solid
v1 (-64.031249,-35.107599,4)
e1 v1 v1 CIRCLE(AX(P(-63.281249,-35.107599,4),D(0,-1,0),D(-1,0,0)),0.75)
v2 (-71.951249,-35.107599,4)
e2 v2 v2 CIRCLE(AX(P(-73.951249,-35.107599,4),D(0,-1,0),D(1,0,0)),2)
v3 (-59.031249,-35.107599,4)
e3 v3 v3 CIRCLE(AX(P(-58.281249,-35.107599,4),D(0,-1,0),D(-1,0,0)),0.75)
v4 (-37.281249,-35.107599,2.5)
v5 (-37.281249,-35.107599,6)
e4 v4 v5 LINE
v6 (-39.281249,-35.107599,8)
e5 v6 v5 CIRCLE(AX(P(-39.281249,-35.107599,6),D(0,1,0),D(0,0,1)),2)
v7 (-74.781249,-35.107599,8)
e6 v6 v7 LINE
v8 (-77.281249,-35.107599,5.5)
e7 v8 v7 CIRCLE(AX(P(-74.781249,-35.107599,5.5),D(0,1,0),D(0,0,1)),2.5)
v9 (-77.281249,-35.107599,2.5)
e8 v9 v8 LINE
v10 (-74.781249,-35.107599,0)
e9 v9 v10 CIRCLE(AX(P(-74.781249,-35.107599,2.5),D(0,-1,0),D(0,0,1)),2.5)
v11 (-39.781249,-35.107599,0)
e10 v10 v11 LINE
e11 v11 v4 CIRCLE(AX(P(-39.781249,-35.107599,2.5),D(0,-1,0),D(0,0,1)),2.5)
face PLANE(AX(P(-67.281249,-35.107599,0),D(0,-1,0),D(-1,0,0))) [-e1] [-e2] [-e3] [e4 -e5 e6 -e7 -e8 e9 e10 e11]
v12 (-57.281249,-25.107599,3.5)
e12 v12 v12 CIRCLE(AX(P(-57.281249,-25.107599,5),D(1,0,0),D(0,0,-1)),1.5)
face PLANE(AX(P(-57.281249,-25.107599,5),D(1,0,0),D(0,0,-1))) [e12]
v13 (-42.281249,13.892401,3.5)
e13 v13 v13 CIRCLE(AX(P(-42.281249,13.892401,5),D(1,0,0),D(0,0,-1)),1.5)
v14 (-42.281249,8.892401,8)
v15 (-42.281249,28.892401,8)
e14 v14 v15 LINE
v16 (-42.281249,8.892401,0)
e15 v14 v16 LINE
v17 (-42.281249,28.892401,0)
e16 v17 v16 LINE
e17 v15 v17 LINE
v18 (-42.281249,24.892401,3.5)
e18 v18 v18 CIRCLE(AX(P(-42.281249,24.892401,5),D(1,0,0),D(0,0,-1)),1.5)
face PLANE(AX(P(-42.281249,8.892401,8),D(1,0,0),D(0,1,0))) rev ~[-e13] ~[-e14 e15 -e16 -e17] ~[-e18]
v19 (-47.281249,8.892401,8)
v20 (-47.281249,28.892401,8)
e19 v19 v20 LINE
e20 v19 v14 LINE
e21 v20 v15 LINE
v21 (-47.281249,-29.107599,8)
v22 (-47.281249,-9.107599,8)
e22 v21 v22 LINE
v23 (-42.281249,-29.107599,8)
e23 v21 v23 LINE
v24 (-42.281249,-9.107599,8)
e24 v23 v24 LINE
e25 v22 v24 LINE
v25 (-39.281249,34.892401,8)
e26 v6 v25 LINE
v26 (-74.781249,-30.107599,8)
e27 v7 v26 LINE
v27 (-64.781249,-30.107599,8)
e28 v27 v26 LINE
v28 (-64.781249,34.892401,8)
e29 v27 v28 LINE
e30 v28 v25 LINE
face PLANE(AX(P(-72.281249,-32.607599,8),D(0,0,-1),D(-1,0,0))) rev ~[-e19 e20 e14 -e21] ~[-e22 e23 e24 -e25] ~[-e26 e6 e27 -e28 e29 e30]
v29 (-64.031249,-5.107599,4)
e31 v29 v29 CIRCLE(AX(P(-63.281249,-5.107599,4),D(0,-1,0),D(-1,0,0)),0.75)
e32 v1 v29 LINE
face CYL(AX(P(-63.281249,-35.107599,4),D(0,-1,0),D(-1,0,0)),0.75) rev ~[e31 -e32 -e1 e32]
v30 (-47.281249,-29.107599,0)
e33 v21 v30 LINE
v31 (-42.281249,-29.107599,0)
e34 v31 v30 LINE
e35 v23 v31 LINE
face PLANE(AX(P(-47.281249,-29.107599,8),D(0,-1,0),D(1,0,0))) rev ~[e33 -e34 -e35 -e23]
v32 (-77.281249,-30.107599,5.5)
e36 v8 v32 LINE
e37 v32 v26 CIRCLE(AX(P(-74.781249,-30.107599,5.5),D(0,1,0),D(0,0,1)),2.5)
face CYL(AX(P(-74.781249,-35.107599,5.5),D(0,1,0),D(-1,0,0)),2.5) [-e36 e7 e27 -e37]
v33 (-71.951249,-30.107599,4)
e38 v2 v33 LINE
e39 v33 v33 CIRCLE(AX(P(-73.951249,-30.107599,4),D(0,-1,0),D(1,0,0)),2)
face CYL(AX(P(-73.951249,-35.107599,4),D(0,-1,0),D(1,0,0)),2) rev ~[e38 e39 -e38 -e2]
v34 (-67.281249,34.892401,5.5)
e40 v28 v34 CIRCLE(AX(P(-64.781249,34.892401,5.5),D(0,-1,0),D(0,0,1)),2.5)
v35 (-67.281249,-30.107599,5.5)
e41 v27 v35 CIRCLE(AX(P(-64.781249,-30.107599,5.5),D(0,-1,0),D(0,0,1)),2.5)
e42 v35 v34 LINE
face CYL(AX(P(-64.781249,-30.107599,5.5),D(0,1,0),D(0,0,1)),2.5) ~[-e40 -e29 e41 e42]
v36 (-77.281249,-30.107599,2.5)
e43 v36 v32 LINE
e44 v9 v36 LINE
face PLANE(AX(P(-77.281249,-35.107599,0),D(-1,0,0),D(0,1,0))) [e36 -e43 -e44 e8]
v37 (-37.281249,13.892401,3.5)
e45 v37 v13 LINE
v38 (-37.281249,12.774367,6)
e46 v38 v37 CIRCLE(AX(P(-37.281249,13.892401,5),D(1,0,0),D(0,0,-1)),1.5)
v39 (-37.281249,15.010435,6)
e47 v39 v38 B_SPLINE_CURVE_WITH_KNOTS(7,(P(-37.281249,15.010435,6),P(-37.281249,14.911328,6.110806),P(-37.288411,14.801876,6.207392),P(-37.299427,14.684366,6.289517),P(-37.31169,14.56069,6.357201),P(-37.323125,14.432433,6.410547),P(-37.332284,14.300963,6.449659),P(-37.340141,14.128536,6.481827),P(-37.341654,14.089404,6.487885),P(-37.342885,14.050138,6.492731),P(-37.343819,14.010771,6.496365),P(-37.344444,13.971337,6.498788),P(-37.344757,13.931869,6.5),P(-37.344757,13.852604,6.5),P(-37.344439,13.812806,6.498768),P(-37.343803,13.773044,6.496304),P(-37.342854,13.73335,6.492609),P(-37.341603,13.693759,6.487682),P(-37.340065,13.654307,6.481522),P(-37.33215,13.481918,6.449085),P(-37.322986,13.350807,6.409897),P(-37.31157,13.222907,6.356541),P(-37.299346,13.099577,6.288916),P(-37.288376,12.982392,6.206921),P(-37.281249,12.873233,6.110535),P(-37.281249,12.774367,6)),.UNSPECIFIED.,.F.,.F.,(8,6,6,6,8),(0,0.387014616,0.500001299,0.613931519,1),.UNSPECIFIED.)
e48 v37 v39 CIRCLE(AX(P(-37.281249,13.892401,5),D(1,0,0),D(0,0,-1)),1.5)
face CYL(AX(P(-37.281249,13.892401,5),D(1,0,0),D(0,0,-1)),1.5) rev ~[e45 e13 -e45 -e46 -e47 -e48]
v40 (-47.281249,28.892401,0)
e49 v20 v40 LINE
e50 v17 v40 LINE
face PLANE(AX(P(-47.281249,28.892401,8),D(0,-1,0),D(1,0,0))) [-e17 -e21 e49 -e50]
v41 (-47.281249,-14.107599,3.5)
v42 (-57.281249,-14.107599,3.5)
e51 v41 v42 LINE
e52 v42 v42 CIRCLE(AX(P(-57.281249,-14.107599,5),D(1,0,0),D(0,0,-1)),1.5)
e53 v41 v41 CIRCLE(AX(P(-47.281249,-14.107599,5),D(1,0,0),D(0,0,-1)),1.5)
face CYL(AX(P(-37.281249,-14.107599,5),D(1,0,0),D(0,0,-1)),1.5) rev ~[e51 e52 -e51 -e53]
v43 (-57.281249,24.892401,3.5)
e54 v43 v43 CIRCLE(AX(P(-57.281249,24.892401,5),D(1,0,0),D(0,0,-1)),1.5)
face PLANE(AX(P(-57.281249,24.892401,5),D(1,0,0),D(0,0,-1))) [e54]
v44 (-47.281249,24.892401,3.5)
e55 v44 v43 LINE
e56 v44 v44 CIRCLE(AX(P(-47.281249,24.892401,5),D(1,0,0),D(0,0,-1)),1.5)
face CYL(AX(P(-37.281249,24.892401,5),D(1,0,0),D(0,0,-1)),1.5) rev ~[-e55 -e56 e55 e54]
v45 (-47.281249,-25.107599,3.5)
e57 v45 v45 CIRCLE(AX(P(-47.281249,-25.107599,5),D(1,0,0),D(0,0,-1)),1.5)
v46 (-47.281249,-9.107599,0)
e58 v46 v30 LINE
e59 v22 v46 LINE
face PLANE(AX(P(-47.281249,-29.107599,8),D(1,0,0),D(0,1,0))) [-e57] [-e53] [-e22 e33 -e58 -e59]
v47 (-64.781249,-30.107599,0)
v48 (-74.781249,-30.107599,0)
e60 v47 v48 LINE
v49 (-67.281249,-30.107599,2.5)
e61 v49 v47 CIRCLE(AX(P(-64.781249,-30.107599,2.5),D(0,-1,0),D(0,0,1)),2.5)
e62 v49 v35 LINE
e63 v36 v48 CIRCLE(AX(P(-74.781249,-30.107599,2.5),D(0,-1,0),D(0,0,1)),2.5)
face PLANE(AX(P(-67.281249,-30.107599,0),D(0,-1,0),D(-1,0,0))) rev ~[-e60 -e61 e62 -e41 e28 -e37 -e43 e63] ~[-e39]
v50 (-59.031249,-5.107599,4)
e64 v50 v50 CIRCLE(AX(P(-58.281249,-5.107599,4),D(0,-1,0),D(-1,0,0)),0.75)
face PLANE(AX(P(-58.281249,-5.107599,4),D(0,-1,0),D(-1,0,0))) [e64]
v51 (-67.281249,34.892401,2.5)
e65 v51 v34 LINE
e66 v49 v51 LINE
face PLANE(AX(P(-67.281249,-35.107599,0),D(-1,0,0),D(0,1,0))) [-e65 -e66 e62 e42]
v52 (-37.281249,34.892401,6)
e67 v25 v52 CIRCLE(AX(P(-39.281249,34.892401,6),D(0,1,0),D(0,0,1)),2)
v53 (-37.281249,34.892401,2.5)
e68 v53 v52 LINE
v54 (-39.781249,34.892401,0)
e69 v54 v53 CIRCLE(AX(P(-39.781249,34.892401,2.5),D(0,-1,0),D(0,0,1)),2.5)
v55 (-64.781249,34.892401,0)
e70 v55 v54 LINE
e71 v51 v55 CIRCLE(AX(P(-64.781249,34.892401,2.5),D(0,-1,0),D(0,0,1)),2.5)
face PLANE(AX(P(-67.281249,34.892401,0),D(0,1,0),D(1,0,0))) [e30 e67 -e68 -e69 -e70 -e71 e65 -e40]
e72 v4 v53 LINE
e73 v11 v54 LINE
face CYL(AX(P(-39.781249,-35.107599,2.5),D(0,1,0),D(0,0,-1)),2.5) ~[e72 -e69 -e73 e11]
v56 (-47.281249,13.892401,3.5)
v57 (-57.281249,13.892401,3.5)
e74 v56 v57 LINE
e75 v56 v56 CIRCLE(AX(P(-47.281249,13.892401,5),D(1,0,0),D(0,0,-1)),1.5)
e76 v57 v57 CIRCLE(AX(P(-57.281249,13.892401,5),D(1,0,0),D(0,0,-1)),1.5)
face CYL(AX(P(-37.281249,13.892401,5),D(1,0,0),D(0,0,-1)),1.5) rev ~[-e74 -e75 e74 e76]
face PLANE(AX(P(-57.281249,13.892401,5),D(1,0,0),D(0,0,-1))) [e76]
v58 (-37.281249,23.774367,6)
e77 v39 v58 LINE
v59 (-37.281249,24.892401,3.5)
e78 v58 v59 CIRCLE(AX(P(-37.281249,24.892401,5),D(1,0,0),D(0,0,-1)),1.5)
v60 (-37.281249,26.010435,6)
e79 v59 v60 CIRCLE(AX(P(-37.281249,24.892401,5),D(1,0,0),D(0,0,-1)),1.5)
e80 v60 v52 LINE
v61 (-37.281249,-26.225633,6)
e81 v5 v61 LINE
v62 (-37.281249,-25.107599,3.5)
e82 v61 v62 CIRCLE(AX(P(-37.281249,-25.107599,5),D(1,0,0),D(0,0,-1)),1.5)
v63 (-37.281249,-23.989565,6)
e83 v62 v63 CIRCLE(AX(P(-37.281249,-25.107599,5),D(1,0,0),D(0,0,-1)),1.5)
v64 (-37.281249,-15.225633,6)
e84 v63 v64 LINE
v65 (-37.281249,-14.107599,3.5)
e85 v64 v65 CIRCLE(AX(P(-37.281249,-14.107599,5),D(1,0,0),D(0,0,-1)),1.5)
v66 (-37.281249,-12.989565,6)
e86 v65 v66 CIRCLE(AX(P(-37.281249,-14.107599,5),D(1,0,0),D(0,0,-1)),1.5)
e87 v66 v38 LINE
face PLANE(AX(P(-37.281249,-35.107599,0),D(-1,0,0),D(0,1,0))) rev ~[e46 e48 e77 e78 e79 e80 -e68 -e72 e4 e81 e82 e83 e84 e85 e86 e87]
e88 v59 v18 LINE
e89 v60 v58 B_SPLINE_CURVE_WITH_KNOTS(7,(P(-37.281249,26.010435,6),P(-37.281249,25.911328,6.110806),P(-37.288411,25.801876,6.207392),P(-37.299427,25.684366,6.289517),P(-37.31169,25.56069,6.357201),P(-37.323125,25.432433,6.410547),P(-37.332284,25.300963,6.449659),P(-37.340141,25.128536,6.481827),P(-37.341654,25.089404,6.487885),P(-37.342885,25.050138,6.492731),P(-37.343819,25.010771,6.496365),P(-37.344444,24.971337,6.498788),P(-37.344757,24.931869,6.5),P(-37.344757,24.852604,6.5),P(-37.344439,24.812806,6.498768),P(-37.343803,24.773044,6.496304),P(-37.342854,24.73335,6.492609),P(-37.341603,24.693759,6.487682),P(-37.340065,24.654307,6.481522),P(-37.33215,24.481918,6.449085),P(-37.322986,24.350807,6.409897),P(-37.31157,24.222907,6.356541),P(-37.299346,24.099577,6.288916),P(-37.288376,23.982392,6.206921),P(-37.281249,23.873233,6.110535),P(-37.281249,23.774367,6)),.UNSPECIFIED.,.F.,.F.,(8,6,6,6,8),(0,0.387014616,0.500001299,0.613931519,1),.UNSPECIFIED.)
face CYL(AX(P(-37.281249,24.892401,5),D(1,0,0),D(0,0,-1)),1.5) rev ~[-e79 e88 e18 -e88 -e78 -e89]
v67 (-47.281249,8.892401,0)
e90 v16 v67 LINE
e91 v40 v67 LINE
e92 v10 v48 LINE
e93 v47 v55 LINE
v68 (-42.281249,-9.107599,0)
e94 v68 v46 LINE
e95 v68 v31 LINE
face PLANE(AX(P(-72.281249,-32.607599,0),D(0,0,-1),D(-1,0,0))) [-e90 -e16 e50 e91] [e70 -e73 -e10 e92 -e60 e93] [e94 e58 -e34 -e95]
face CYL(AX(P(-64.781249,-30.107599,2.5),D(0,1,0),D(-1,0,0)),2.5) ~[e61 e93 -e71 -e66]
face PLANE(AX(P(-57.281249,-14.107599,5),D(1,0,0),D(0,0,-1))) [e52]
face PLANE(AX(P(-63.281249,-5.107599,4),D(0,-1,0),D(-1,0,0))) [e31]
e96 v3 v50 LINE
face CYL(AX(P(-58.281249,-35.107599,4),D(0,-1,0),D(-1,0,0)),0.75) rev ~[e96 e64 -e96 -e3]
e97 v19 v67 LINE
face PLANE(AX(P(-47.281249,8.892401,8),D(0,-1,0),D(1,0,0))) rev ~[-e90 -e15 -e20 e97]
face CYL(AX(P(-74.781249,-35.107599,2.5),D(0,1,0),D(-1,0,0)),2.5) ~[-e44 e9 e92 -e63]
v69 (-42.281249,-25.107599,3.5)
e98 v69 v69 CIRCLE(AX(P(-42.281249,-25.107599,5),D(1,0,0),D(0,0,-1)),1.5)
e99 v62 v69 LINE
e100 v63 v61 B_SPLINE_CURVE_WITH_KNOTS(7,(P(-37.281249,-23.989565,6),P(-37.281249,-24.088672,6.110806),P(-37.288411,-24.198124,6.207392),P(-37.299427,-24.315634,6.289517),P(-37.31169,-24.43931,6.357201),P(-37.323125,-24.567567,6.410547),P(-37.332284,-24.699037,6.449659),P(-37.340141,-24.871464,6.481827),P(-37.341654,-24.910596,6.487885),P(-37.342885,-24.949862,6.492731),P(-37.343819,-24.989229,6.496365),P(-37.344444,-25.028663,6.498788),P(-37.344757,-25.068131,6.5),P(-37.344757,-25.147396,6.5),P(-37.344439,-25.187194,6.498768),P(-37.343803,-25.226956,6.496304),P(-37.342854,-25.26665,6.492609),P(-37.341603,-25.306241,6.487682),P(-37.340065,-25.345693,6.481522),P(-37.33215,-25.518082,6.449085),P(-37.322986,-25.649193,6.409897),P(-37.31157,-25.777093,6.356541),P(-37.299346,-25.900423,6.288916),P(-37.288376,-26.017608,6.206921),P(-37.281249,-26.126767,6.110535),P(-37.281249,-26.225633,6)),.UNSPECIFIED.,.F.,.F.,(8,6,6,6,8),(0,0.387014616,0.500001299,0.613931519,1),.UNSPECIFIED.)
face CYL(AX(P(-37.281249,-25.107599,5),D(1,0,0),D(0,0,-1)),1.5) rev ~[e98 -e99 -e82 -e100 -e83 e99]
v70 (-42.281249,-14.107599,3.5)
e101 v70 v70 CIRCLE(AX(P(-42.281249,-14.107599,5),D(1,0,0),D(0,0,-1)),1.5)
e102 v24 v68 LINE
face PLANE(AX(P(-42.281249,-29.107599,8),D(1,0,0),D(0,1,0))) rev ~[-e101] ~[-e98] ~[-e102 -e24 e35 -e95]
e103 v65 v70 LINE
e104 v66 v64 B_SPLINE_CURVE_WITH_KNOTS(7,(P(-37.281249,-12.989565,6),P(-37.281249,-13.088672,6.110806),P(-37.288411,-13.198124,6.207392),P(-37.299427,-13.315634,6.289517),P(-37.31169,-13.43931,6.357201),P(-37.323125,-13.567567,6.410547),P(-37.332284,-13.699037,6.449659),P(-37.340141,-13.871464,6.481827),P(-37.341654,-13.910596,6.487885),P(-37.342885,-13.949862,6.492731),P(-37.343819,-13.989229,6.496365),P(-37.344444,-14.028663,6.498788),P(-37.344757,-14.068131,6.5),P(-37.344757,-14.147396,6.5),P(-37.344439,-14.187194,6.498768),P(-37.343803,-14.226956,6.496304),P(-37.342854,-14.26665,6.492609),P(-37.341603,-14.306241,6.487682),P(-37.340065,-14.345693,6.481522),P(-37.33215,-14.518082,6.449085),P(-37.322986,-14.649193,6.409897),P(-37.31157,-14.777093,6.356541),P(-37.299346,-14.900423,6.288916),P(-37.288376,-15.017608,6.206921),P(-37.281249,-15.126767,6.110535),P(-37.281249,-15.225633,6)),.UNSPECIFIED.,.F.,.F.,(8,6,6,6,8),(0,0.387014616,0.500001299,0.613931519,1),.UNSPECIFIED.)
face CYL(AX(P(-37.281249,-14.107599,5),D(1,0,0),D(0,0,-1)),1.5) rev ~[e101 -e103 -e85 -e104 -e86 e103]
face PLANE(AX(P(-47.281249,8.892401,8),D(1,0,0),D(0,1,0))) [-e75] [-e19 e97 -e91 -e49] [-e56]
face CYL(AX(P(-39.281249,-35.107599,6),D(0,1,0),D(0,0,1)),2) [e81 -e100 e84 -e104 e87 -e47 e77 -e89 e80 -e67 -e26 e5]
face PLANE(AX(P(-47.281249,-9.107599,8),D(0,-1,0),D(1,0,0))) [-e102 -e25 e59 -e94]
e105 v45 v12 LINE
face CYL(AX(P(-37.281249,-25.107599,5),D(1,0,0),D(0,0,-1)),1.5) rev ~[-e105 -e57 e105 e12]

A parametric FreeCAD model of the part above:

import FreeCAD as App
import Part
import Sketcher


def edges_at(feature, points):
    """Names of the edges that pass closest to the given points."""
    edges = feature.Shape.Edges
    near = lambda p: min(range(len(edges)), key=lambda i: edges[i].distToShape(Part.Vertex(*p))[0])
    return sorted({f"Edge{near(p) + 1}" for p in points})


def add_polygon(sketch, points):
    """Adds a closed chain of lines whose ends are joined by coincident constraints."""
    first, n = sketch.GeometryCount, len(points)
    for a, b in zip(points, points[1:] + points[:1]):
        sketch.addGeometry(Part.LineSegment(App.Vector(*a, 0), App.Vector(*b, 0)), False)
    for i in range(n):
        sketch.addConstraint(Sketcher.Constraint("Coincident", first + i, 2, first + (i + 1) % n, 1))

doc = App.newDocument("Part")
body = doc.addObject("PartDesign::Body", "Body")

# Sketch on XY plane
sketch1 = doc.addObject("Sketcher::SketchObject", "Sketch")
body.addObject(sketch1)
sketch1.AttachmentSupport = (doc.XY_Plane, [""])
sketch1.MapMode = "FlatFace"
add_polygon(sketch1, [(-67.281249, 34.892401), (-67.281249, -35.107599), (-37.281249, -35.107599), (-37.281249, 34.892401)])  # lines 0-3
sketch1.addConstraint(Sketcher.Constraint("Vertical", 0))
sketch1.addConstraint(Sketcher.Constraint("Horizontal", 1))
sketch1.addConstraint(Sketcher.Constraint("Vertical", 2))
sketch1.addConstraint(Sketcher.Constraint("Horizontal", 3))
sketch1.addConstraint(Sketcher.Constraint("DistanceX", 1, 1, 1, 2, 30.0))
sketch1.addConstraint(Sketcher.Constraint("DistanceY", 0, 2, 0, 1, 70.0))
sketch1.addConstraint(Sketcher.Constraint("DistanceY", 0, 2, -1, 1, 35.107599))
sketch1.addConstraint(Sketcher.Constraint("DistanceX", 0, 2, -1, 1, 67.281249))
pad1 = doc.addObject("PartDesign::Pad", "Pad")
body.addObject(pad1)
pad1.Profile = sketch1
pad1.Length = 8

# Sketch on XZ plane
sketch2 = doc.addObject("Sketcher::SketchObject", "Sketch001")
body.addObject(sketch2)
sketch2.AttachmentSupport = (doc.XZ_Plane, [""])
sketch2.MapMode = "FlatFace"
sketch2.AttachmentOffset = App.Placement(App.Vector(0, 0, 35.107599), App.Rotation())
sketch2.addGeometry(Part.Circle(App.Vector(-58.281249, 4, 0), App.Vector(0, 0, 1), 0.75), False)
sketch2.addGeometry(Part.Circle(App.Vector(-63.281249, 4, 0), App.Vector(0, 0, 1), 0.75), False)
sketch2.addConstraint(Sketcher.Constraint("Equal", 0, 1))
sketch2.addConstraint(Sketcher.Constraint("Horizontal", 0, 3, 1, 3))
sketch2.addConstraint(Sketcher.Constraint("Diameter", 0, 1.5))
sketch2.addConstraint(Sketcher.Constraint("DistanceY", -1, 1, 0, 3, 4.0))
sketch2.addConstraint(Sketcher.Constraint("DistanceX", 1, 3, 0, 3, 5.0))
sketch2.addConstraint(Sketcher.Constraint("DistanceX", 0, 3, -1, 1, 58.281249))
pocket1 = doc.addObject("PartDesign::Pocket", "Pocket")
body.addObject(pocket1)
pocket1.Profile = sketch2
pocket1.Length = 30
doc.recompute()

fillet = doc.addObject("PartDesign::Fillet", "Fillet")
body.addObject(fillet)
fillet.Base = (pocket1, edges_at(pocket1, [(-37.281, -0.108, 8)]))
fillet.Radius = 2

# Sketch on XY plane
sketch3 = doc.addObject("Sketcher::SketchObject", "Sketch002")
body.addObject(sketch3)
sketch3.AttachmentSupport = (doc.XY_Plane, [""])
sketch3.MapMode = "FlatFace"
add_polygon(sketch3, [(-67.281249, -30.107599), (-67.281249, -35.107599), (-77.281249, -35.107599), (-77.281249, -30.107599)])  # lines 0-3
sketch3.addConstraint(Sketcher.Constraint("Vertical", 0))
sketch3.addConstraint(Sketcher.Constraint("Horizontal", 1))
sketch3.addConstraint(Sketcher.Constraint("Vertical", 2))
sketch3.addConstraint(Sketcher.Constraint("Horizontal", 3))
sketch3.addConstraint(Sketcher.Constraint("DistanceX", 1, 2, 1, 1, 10.0))
sketch3.addConstraint(Sketcher.Constraint("DistanceY", 0, 2, 0, 1, 5.0))
sketch3.addConstraint(Sketcher.Constraint("DistanceY", 0, 2, -1, 1, 35.107599))
sketch3.addConstraint(Sketcher.Constraint("DistanceX", 0, 2, -1, 1, 67.281249))
pad2 = doc.addObject("PartDesign::Pad", "Pad001")
body.addObject(pad2)
pad2.Profile = sketch3
pad2.Length = 8

# Sketch on XZ plane
sketch4 = doc.addObject("Sketcher::SketchObject", "Sketch003")
body.addObject(sketch4)
sketch4.AttachmentSupport = (doc.XZ_Plane, [""])
sketch4.MapMode = "FlatFace"
sketch4.AttachmentOffset = App.Placement(App.Vector(0, 0, 35.107599), App.Rotation())
sketch4.addGeometry(Part.Circle(App.Vector(-73.951249, 4, 0), App.Vector(0, 0, 1), 2), False)
sketch4.addConstraint(Sketcher.Constraint("Diameter", 0, 4.0))
sketch4.addConstraint(Sketcher.Constraint("DistanceY", -1, 1, 0, 3, 4.0))
sketch4.addConstraint(Sketcher.Constraint("DistanceX", 0, 3, -1, 1, 73.951249))
pocket2 = doc.addObject("PartDesign::Pocket", "Pocket001")
body.addObject(pocket2)
pocket2.Profile = sketch4
pocket2.Length = 8
doc.recompute()

fillet2 = doc.addObject("PartDesign::Fillet", "Fillet001")
body.addObject(fillet2)
fillet2.Base = (pocket2, edges_at(pocket2, [(-67.281, 2.392, 8)]))
fillet2.Radius = 2.5
doc.recompute()

fillet3 = doc.addObject("PartDesign::Fillet", "Fillet002")
body.addObject(fillet3)
fillet3.Base = (fillet2, edges_at(fillet2, [(-67.281, 2.392, 0)]))
fillet3.Radius = 2.5
doc.recompute()

fillet4 = doc.addObject("PartDesign::Fillet", "Fillet003")
body.addObject(fillet4)
fillet4.Base = (fillet3, edges_at(fillet3, [(-77.281, -32.608, 8)]))
fillet4.Radius = 2.5
doc.recompute()

fillet5 = doc.addObject("PartDesign::Fillet", "Fillet004")
body.addObject(fillet5)
fillet5.Base = (fillet4, edges_at(fillet4, [(-77.281, -32.608, 0)]))
fillet5.Radius = 2.5

# Sketch on XY plane
sketch5 = doc.addObject("Sketcher::SketchObject", "Sketch004")
body.addObject(sketch5)
sketch5.AttachmentSupport = (doc.XY_Plane, [""])
sketch5.MapMode = "FlatFace"
sketch5.AttachmentOffset = App.Placement(App.Vector(0, 0, 8), App.Rotation())
add_polygon(sketch5, [(-47.281249, 28.892401), (-47.281249, 8.892401), (-42.281249, 8.892401), (-42.281249, 28.892401)])  # lines 0-3
add_polygon(sketch5, [(-47.281249, -9.107599), (-47.281249, -29.107599), (-42.281249, -29.107599), (-42.281249, -9.107599)])  # lines 4-7
sketch5.addConstraint(Sketcher.Constraint("Vertical", 0))
sketch5.addConstraint(Sketcher.Constraint("Horizontal", 1))
sketch5.addConstraint(Sketcher.Constraint("Vertical", 2))
sketch5.addConstraint(Sketcher.Constraint("Horizontal", 3))
sketch5.addConstraint(Sketcher.Constraint("Vertical", 4))
sketch5.addConstraint(Sketcher.Constraint("Horizontal", 5))
sketch5.addConstraint(Sketcher.Constraint("Vertical", 6))
sketch5.addConstraint(Sketcher.Constraint("Horizontal", 7))
sketch5.addConstraint(Sketcher.Constraint("Vertical", 3, 2, 4, 2))
sketch5.addConstraint(Sketcher.Constraint("Vertical", 2, 2, 5, 2))
sketch5.addConstraint(Sketcher.Constraint("Equal", 2, 4))
sketch5.addConstraint(Sketcher.Constraint("DistanceX", 1, 1, 1, 2, 5.0))
sketch5.addConstraint(Sketcher.Constraint("DistanceY", 0, 2, 0, 1, 20.0))
sketch5.addConstraint(Sketcher.Constraint("DistanceY", 4, 2, 0, 2, 38.0))
sketch5.addConstraint(Sketcher.Constraint("DistanceY", -1, 1, 0, 2, 8.892401))
sketch5.addConstraint(Sketcher.Constraint("DistanceX", 0, 2, -1, 1, 47.281249))
pocket3 = doc.addObject("PartDesign::Pocket", "Pocket002")
body.addObject(pocket3)
pocket3.Profile = sketch5
pocket3.Type = "ThroughAll"
doc.recompute()

fillet6 = doc.addObject("PartDesign::Fillet", "Fillet005")
body.addObject(fillet6)
fillet6.Base = (pocket3, edges_at(pocket3, [(-37.281, -0.108, 0)]))
fillet6.Radius = 2.5

# Sketch on YZ plane
sketch6 = doc.addObject("Sketcher::SketchObject", "Sketch005")
body.addObject(sketch6)
sketch6.AttachmentSupport = (doc.YZ_Plane, [""])
sketch6.MapMode = "FlatFace"
sketch6.AttachmentOffset = App.Placement(App.Vector(0, 0, -37.281249), App.Rotation())
sketch6.addGeometry(Part.Circle(App.Vector(-25.107599, 5, 0), App.Vector(0, 0, 1), 1.5), False)
sketch6.addGeometry(Part.Circle(App.Vector(-14.107599, 5, 0), App.Vector(0, 0, 1), 1.5), False)
sketch6.addGeometry(Part.Circle(App.Vector(24.892401, 5, 0), App.Vector(0, 0, 1), 1.5), False)
sketch6.addGeometry(Part.Circle(App.Vector(13.892401, 5, 0), App.Vector(0, 0, 1), 1.5), False)
sketch6.addConstraint(Sketcher.Constraint("Equal", 0, 1))
sketch6.addConstraint(Sketcher.Constraint("Equal", 1, 2))
sketch6.addConstraint(Sketcher.Constraint("Equal", 2, 3))
sketch6.addConstraint(Sketcher.Constraint("Horizontal", 0, 3, 1, 3))
sketch6.addConstraint(Sketcher.Constraint("Horizontal", 1, 3, 2, 3))
sketch6.addConstraint(Sketcher.Constraint("Horizontal", 2, 3, 3, 3))
sketch6.addConstraint(Sketcher.Constraint("Diameter", 0, 3.0))
sketch6.addConstraint(Sketcher.Constraint("DistanceY", -1, 1, 0, 3, 5.0))
sketch6.addConstraint(Sketcher.Constraint("DistanceX", 0, 3, 1, 3, 11.0))
sketch6.addConstraint(Sketcher.Constraint("DistanceX", 1, 3, 2, 3, 39.0))
sketch6.addConstraint(Sketcher.Constraint("DistanceX", 3, 3, 2, 3, 11.0))
sketch6.addConstraint(Sketcher.Constraint("DistanceX", 0, 3, -1, 1, 25.107599))
pocket4 = doc.addObject("PartDesign::Pocket", "Pocket003")
body.addObject(pocket4)
pocket4.Profile = sketch6
pocket4.Length = 20

doc.recompute()
